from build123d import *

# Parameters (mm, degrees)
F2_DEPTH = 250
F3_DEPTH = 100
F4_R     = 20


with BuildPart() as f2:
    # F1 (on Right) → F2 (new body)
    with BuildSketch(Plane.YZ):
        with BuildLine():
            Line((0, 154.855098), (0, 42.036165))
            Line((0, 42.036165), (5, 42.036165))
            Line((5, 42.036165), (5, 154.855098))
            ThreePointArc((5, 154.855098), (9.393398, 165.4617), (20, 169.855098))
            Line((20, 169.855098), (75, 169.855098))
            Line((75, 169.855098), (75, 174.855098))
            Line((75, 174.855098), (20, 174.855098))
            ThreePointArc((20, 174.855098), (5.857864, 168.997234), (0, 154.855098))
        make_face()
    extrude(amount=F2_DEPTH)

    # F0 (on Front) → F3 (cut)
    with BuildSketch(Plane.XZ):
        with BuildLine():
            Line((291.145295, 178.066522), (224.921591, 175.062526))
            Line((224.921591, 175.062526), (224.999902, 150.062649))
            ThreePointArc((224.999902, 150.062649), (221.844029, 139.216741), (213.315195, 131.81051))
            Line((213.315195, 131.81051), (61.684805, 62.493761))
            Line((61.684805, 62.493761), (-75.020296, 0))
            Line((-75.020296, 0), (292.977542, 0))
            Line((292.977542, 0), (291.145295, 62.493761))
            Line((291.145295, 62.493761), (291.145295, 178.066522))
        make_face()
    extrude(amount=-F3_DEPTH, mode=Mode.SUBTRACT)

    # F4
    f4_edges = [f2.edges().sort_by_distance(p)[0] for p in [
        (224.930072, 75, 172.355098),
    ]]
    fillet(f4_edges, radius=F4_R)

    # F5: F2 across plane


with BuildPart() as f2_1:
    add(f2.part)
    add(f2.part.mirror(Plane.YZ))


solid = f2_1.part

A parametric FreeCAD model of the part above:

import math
import FreeCAD as App
import Part
import Sketcher

V = App.Vector
Q = App.Units.Quantity


def edges_at(feature, points):
    """Names of the edges that pass closest to the given points."""
    edges = feature.Shape.Edges
    near = lambda p: min(range(len(edges)), key=lambda i: edges[i].distToShape(Part.Vertex(*p))[0])
    return sorted({f"Edge{near(p) + 1}" for p in points})

doc = App.newDocument("Part")
body = doc.addObject("PartDesign::Body", "Body")

sketch1 = body.newObject("Sketcher::SketchObject", "Sketch")
sketch1.AttachmentSupport = (doc.getObject("YZ_Plane"), [""])
sketch1.MapMode = "FlatFace"
sketch1.addGeometry(Part.LineSegment(V(0, 155, 0), V(0, 42, 0)), False)
sketch1.addGeometry(Part.LineSegment(V(0, 42, 0), V(5, 42, 0)), False)
sketch1.addGeometry(Part.LineSegment(V(5, 42, 0), V(5, 155, 0)), False)
sketch1.addGeometry(Part.ArcOfCircle(Part.Circle(V(20, 155, 0), V(0, 0, 1), 15), math.radians(90), math.radians(180)), False)
sketch1.addGeometry(Part.LineSegment(V(20, 170, 0), V(75, 170, 0)), False)
sketch1.addGeometry(Part.LineSegment(V(75, 170, 0), V(75, 175, 0)), False)
sketch1.addGeometry(Part.LineSegment(V(75, 175, 0), V(20, 175, 0)), False)
sketch1.addGeometry(Part.ArcOfCircle(Part.Circle(V(20, 155, 0), V(0, 0, 1), 20), math.radians(90), math.radians(180)), False)
sketch1.addConstraint(Sketcher.Constraint("Coincident", 0, 2, 1, 1))
sketch1.addConstraint(Sketcher.Constraint("Coincident", 1, 2, 2, 1))
sketch1.addConstraint(Sketcher.Constraint("Tangent", 2, 2, 3, 2))
sketch1.addConstraint(Sketcher.Constraint("Tangent", 3, 1, 4, 1))
sketch1.addConstraint(Sketcher.Constraint("Coincident", 4, 2, 5, 1))
sketch1.addConstraint(Sketcher.Constraint("Coincident", 5, 2, 6, 1))
sketch1.addConstraint(Sketcher.Constraint("Tangent", 6, 2, 7, 1))
sketch1.addConstraint(Sketcher.Constraint("Tangent", 7, 2, 0, 1))
sketch1.addConstraint(Sketcher.Constraint("Vertical", 0))
sketch1.addConstraint(Sketcher.Constraint("Horizontal", 1))
sketch1.addConstraint(Sketcher.Constraint("Vertical", 2))
sketch1.addConstraint(Sketcher.Constraint("Horizontal", 4))
sketch1.addConstraint(Sketcher.Constraint("Vertical", 5))
sketch1.addConstraint(Sketcher.Constraint("Horizontal", 6))
sketch1.addConstraint(Sketcher.Constraint("Coincident", 7, 3, 3, 3))
sketch1.addConstraint(Sketcher.Constraint("PointOnObject", 0, 2, -2))
sketch1.addConstraint(Sketcher.Constraint("Radius", 3, Q("14.999999 mm")))
sketch1.addConstraint(Sketcher.Constraint("Radius", 7, Q("19.999999 mm")))
sketch1.addConstraint(Sketcher.Constraint("DistanceX", 4, 1, 4, 2, Q("55 mm")))
sketch1.addConstraint(Sketcher.Constraint("DistanceY", -1, 1, 3, 3, Q("154.855099 mm")))
sketch1.addConstraint(Sketcher.Constraint("DistanceY", 0, 2, 0, 1, Q("112.818933 mm")))
pad1 = body.newObject("PartDesign::Pad", "Pad")
pad1.Profile = sketch1
pad1.Length = 250

sketch2 = body.newObject("Sketcher::SketchObject", "Sketch001")
sketch2.AttachmentSupport = (doc.getObject("XZ_Plane"), [""])
sketch2.MapMode = "FlatFace"
sketch2.addGeometry(Part.LineSegment(V(291, 178, 0), V(225, 175, 0)), False)
sketch2.addGeometry(Part.LineSegment(V(225, 175, 0), V(225, 150, 0)), False)
sketch2.addGeometry(Part.ArcOfCircle(Part.Circle(V(205, 150, 0), V(0, 0, 1), 20), math.radians(-65), math.radians(0)), False)
sketch2.addGeometry(Part.LineSegment(V(213, 132, 0), V(62, 62, 0)), False)
sketch2.addGeometry(Part.LineSegment(V(62, 62, 0), V(-75, 0, 0)), False)
sketch2.addGeometry(Part.LineSegment(V(-75, 0, 0), V(293, 0, 0)), False)
sketch2.addGeometry(Part.LineSegment(V(293, 0, 0), V(291, 62, 0)), False)
sketch2.addGeometry(Part.LineSegment(V(291, 62, 0), V(291, 178, 0)), False)
sketch2.addConstraint(Sketcher.Constraint("Coincident", 0, 2, 1, 1))
sketch2.addConstraint(Sketcher.Constraint("Tangent", 1, 2, 2, 2))
sketch2.addConstraint(Sketcher.Constraint("Tangent", 2, 1, 3, 1))
sketch2.addConstraint(Sketcher.Constraint("Coincident", 3, 2, 4, 1))
sketch2.addConstraint(Sketcher.Constraint("Coincident", 4, 2, 5, 1))
sketch2.addConstraint(Sketcher.Constraint("Coincident", 5, 2, 6, 1))
sketch2.addConstraint(Sketcher.Constraint("Coincident", 6, 2, 7, 1))
sketch2.addConstraint(Sketcher.Constraint("Coincident", 7, 2, 0, 1))
sketch2.addConstraint(Sketcher.Constraint("Horizontal", 5))
sketch2.addConstraint(Sketcher.Constraint("Vertical", 7))
sketch2.addConstraint(Sketcher.Constraint("PointOnObject", 4, 2, -1))
sketch2.addConstraint(Sketcher.Constraint("Parallel", 3, 4))
sketch2.addConstraint(Sketcher.Constraint("Horizontal", 3, 2, 6, 2))
sketch2.addConstraint(Sketcher.Constraint("Distance", 1, Q("25 mm")))
sketch2.addConstraint(Sketcher.Constraint("DistanceY", -1, 1, 2, 3, Q("150.000002 mm")))
sketch2.addConstraint(Sketcher.Constraint("Radius", 2, Q("20.000003 mm")))
sketch2.addConstraint(Sketcher.Constraint("Distance", 0, Q("66.291802 mm")))
sketch2.addConstraint(Sketcher.Constraint("DistanceX", 5, 1, 5, 2, Q("367.997838 mm")))
sketch2.addConstraint(Sketcher.Constraint("DistanceY", 7, 1, 7, 2, Q("115.572761 mm")))
sketch2.addConstraint(Sketcher.Constraint("DistanceX", -1, 1, 1, 2, Q("224.999902 mm")))
sketch2.addConstraint(Sketcher.Constraint("DistanceX", 4, 2, 3, 2, Q("136.705101 mm")))
sketch2.addConstraint(Sketcher.Constraint("DistanceX", 4, 2, 1, 2, Q("300.020198 mm")))
sketch2.addConstraint(Sketcher.Constraint("DistanceX", 2, 1, 6, 2, Q("77.8301 mm")))
pocket1 = body.newObject("PartDesign::Pocket", "Pocket")
pocket1.Profile = sketch2
pocket1.Length = 100
doc.recompute()

fillet = body.newObject("PartDesign::Fillet", "Fillet")
fillet.Base = (pocket1, edges_at(pocket1, [(224.93, 75, 172.355)]))
fillet.Radius = 20
body2 = doc.addObject("PartDesign::Body", "Body001")
doc.recompute()

body2.BaseFeature = body
doc.recompute()

mirroring = doc.addObject("Part::Mirroring", "Mirroring")
mirroring.Source = body
mirroring.Base = V(0, 0, 0)
mirroring.Normal = V(1, 0, 0)
body3 = doc.addObject("PartDesign::Body", "Body002")
body3.BaseFeature = mirroring
boolean = body2.newObject("PartDesign::Boolean", "Boolean")
boolean.Type = "Fuse"
boolean.addObjects([body3])
doc.recompute()
mirroring.Visibility = False

doc.recompute()
